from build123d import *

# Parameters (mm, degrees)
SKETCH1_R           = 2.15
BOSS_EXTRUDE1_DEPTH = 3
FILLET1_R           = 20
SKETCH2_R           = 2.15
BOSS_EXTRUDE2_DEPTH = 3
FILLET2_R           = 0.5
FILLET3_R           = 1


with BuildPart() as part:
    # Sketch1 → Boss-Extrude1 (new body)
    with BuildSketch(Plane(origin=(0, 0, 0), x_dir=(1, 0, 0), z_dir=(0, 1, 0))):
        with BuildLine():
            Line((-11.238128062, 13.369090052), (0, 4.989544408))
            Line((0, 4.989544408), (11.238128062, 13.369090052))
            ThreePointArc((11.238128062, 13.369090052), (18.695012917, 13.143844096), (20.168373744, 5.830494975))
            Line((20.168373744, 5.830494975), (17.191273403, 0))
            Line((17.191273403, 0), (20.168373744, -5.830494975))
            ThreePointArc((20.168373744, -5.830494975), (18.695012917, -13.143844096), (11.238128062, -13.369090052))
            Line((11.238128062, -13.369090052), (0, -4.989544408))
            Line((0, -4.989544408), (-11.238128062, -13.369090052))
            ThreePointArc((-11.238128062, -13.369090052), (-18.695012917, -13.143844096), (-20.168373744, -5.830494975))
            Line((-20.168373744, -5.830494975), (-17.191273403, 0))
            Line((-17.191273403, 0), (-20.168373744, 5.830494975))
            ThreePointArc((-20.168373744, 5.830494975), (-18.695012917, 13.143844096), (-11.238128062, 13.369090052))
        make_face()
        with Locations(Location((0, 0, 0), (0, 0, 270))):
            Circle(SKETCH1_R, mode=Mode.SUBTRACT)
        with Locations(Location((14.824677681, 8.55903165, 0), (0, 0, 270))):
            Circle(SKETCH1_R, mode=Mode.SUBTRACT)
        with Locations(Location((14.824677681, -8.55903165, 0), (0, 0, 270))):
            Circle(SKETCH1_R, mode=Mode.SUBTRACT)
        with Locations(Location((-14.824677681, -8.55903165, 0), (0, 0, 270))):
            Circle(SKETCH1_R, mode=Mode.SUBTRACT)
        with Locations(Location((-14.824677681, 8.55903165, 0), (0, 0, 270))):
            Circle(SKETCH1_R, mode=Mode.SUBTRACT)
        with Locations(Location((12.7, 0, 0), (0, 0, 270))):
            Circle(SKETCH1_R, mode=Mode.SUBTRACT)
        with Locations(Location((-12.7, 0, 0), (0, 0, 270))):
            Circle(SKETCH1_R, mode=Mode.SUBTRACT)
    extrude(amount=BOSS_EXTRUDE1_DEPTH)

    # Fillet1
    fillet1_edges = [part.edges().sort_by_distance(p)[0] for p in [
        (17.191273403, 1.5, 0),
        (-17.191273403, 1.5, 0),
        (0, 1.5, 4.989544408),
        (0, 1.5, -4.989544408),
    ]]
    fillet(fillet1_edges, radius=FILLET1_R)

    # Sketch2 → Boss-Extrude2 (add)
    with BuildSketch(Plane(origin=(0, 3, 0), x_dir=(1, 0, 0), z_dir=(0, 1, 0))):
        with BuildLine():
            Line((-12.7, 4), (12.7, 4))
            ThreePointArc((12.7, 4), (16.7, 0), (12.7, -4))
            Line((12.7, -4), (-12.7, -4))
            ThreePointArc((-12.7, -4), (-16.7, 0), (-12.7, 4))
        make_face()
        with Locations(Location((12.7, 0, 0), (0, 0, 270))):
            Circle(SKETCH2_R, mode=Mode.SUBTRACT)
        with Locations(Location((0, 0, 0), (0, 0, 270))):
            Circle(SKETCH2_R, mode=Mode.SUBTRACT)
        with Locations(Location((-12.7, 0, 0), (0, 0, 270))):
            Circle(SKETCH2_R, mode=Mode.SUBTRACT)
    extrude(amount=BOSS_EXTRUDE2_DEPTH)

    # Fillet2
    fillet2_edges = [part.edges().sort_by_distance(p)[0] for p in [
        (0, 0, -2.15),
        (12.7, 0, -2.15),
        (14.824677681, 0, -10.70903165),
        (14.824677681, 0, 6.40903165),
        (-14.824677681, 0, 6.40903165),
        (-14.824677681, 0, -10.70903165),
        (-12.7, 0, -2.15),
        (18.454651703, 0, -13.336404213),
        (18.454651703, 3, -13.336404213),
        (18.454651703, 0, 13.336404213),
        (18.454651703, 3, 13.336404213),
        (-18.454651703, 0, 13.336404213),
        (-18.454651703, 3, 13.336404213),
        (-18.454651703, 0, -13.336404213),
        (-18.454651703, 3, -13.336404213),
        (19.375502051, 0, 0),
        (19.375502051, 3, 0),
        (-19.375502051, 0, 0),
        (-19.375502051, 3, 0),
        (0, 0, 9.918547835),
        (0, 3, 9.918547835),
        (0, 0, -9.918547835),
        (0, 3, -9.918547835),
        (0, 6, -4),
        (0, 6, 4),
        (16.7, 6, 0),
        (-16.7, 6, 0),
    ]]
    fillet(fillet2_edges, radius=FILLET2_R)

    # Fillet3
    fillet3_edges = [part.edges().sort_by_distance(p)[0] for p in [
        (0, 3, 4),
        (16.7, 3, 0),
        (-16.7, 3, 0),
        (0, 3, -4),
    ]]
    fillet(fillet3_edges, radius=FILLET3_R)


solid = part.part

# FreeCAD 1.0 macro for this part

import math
import FreeCAD as App
import Part
import Sketcher
from FreeCAD import Vector
Q = App.Units.Quantity


def edges_at(feature, points):
    """Names of the edges that pass closest to the given points."""
    edges = feature.Shape.Edges
    near = lambda p: min(range(len(edges)), key=lambda i: edges[i].distToShape(Part.Vertex(*p))[0])
    return sorted({f"Edge{near(p) + 1}" for p in points})

doc = App.newDocument("Part")
body = doc.addObject("PartDesign::Body", "Body")

# Sketch on XZ plane
sketch1 = doc.addObject("Sketcher::SketchObject", "Sketch")
body.addObject(sketch1)
sketch1.AttachmentSupport = (doc.XZ_Plane, [""])
sketch1.MapMode = "FlatFace"
sketch1.addGeometry(Part.LineSegment(Vector(0, -5, 0), Vector(-11.2, -13.4, 0)), False)
sketch1.addGeometry(Part.ArcOfCircle(Part.Circle(Vector(-14.8, -8.6, 0), Vector(0, 0, 1), 6), math.radians(153), math.radians(307)), False)
sketch1.addGeometry(Part.LineSegment(Vector(-20.2, -5.8, 0), Vector(-17.2, 0, 0)), False)
sketch1.addGeometry(Part.LineSegment(Vector(-17.2, 0, 0), Vector(-20.2, 5.8, 0)), False)
sketch1.addGeometry(Part.ArcOfCircle(Part.Circle(Vector(-14.8, 8.6, 0), Vector(0, 0, 1), 6), math.radians(53), math.radians(207)), False)
sketch1.addGeometry(Part.LineSegment(Vector(-11.2, 13.4, 0), Vector(0, 5, 0)), False)
sketch1.addGeometry(Part.LineSegment(Vector(0, 5, 0), Vector(11.2, 13.4, 0)), False)
sketch1.addGeometry(Part.ArcOfCircle(Part.Circle(Vector(14.8, 8.6, 0), Vector(0, 0, 1), 6), math.radians(-27), math.radians(127)), False)
sketch1.addGeometry(Part.LineSegment(Vector(20.2, 5.8, 0), Vector(17.2, 0, 0)), False)
sketch1.addGeometry(Part.LineSegment(Vector(17.2, 0, 0), Vector(20.2, -5.8, 0)), False)
sketch1.addGeometry(Part.ArcOfCircle(Part.Circle(Vector(14.8, -8.6, 0), Vector(0, 0, 1), 6), math.radians(-127), math.radians(27)), False)
sketch1.addGeometry(Part.LineSegment(Vector(11.2, -13.4, 0), Vector(0, -5, 0)), False)
sketch1.addGeometry(Part.Circle(Vector(14.8, 8.6, 0), Vector(0, 0, 1), 2.1), False)
sketch1.addGeometry(Part.Circle(Vector(-14.8, 8.6, 0), Vector(0, 0, 1), 2.1), False)
sketch1.addGeometry(Part.Circle(Vector(12.7, 0, 0), Vector(0, 0, 1), 2.1), False)
sketch1.addGeometry(Part.Circle(Vector(14.8, -8.6, 0), Vector(0, 0, 1), 2.1), False)
sketch1.addGeometry(Part.Circle(Vector(0, 0, 0), Vector(0, 0, 1), 2.1), False)
sketch1.addGeometry(Part.Circle(Vector(-12.7, 0, 0), Vector(0, 0, 1), 2.1), False)
sketch1.addGeometry(Part.Circle(Vector(-14.8, -8.6, 0), Vector(0, 0, 1), 2.1), False)
sketch1.addConstraint(Sketcher.Constraint("Tangent", 0, 2, 1, 2))
sketch1.addConstraint(Sketcher.Constraint("Tangent", 1, 1, 2, 1))
sketch1.addConstraint(Sketcher.Constraint("Coincident", 2, 2, 3, 1))
sketch1.addConstraint(Sketcher.Constraint("Tangent", 3, 2, 4, 2))
sketch1.addConstraint(Sketcher.Constraint("Tangent", 4, 1, 5, 1))
sketch1.addConstraint(Sketcher.Constraint("Coincident", 5, 2, 6, 1))
sketch1.addConstraint(Sketcher.Constraint("Tangent", 6, 2, 7, 2))
sketch1.addConstraint(Sketcher.Constraint("Tangent", 7, 1, 8, 1))
sketch1.addConstraint(Sketcher.Constraint("Coincident", 8, 2, 9, 1))
sketch1.addConstraint(Sketcher.Constraint("Tangent", 9, 2, 10, 2))
sketch1.addConstraint(Sketcher.Constraint("Tangent", 10, 1, 11, 1))
sketch1.addConstraint(Sketcher.Constraint("Coincident", 11, 2, 0, 1))
sketch1.addConstraint(Sketcher.Constraint("Coincident", 16, 3, -1, 1))
sketch1.addConstraint(Sketcher.Constraint("Coincident", 12, 3, 7, 3))
sketch1.addConstraint(Sketcher.Constraint("Coincident", 13, 3, 4, 3))
sketch1.addConstraint(Sketcher.Constraint("Coincident", 15, 3, 10, 3))
sketch1.addConstraint(Sketcher.Constraint("Coincident", 18, 3, 1, 3))
sketch1.addConstraint(Sketcher.Constraint("Equal", 1, 4))
sketch1.addConstraint(Sketcher.Constraint("Equal", 4, 7))
sketch1.addConstraint(Sketcher.Constraint("Equal", 7, 10))
sketch1.addConstraint(Sketcher.Constraint("Equal", 12, 13))
sketch1.addConstraint(Sketcher.Constraint("Equal", 13, 14))
sketch1.addConstraint(Sketcher.Constraint("Equal", 14, 15))
sketch1.addConstraint(Sketcher.Constraint("Equal", 15, 16))
sketch1.addConstraint(Sketcher.Constraint("Equal", 16, 17))
sketch1.addConstraint(Sketcher.Constraint("Equal", 17, 18))
sketch1.addConstraint(Sketcher.Constraint("Symmetric", 1, 3, 7, 3, -1, 1))
sketch1.addConstraint(Sketcher.Constraint("Symmetric", 4, 3, 10, 3, -1, 1))
sketch1.addConstraint(Sketcher.Constraint("Symmetric", 14, 3, 17, 3, -1, 1))
sketch1.addConstraint(Sketcher.Constraint("Symmetric", 2, 2, 8, 2, -1, 1))
sketch1.addConstraint(Sketcher.Constraint("Symmetric", 5, 2, 11, 2, -1, 1))
sketch1.addConstraint(Sketcher.Constraint("Symmetric", 4, 3, 7, 3, -2))
sketch1.addConstraint(Sketcher.Constraint("PointOnObject", 14, 3, -1))
sketch1.addConstraint(Sketcher.Constraint("PointOnObject", 2, 2, -1))
sketch1.addConstraint(Sketcher.Constraint("PointOnObject", 5, 2, -2))
sketch1.addConstraint(Sketcher.Constraint("Radius", 1, Q("6 mm")))
sketch1.addConstraint(Sketcher.Constraint("Diameter", 12, Q("4.3 mm")))
sketch1.addConstraint(Sketcher.Constraint("DistanceX", -1, 1, 14, 3, Q("12.7 mm")))
sketch1.addConstraint(Sketcher.Constraint("DistanceX", 1, 1, 2, 2, Q("2.9771 mm")))
sketch1.addConstraint(Sketcher.Constraint("DistanceY", 1, 3, -1, 1, Q("8.559032 mm")))
sketch1.addConstraint(Sketcher.Constraint("DistanceX", 0, 2, -1, 1, Q("11.238128 mm")))
sketch1.addConstraint(Sketcher.Constraint("DistanceY", 0, 2, -1, 1, Q("13.36909 mm")))
pad1 = doc.addObject("PartDesign::Pad", "Pad")
body.addObject(pad1)
pad1.Profile = sketch1
pad1.Length = 3
pad1.Reversed = True
doc.recompute()

fillet = doc.addObject("PartDesign::Fillet", "Fillet")
body.addObject(fillet)
fillet.Base = (pad1, edges_at(pad1, [
    (17.191, 1.5, 0),
    (-17.191, 1.5, 0),
    (0, 1.5, 4.99),
    (0, 1.5, -4.99),
]))
fillet.Radius = 20

# Sketch on XZ plane
sketch2 = doc.addObject("Sketcher::SketchObject", "Sketch001")
body.addObject(sketch2)
sketch2.AttachmentSupport = (doc.XZ_Plane, [""])
sketch2.MapMode = "FlatFace"
sketch2.AttachmentOffset = App.Placement(Vector(0, 0, -3), App.Rotation())
sketch2.addGeometry(Part.LineSegment(Vector(12.7, -4, 0), Vector(-12.7, -4, 0)), False)
sketch2.addGeometry(Part.ArcOfCircle(Part.Circle(Vector(-12.7, 0, 0), Vector(0, 0, 1), 4), math.radians(90), math.radians(270)), False)
sketch2.addGeometry(Part.LineSegment(Vector(-12.7, 4, 0), Vector(12.7, 4, 0)), False)
sketch2.addGeometry(Part.ArcOfCircle(Part.Circle(Vector(12.7, 0, 0), Vector(0, 0, 1), 4), math.radians(-90), math.radians(90)), False)
sketch2.addGeometry(Part.Circle(Vector(12.7, 0, 0), Vector(0, 0, 1), 2.1), False)
sketch2.addGeometry(Part.Circle(Vector(0, 0, 0), Vector(0, 0, 1), 2.1), False)
sketch2.addGeometry(Part.Circle(Vector(-12.7, 0, 0), Vector(0, 0, 1), 2.1), False)
sketch2.addConstraint(Sketcher.Constraint("Tangent", 0, 2, 1, 2))
sketch2.addConstraint(Sketcher.Constraint("Tangent", 1, 1, 2, 1))
sketch2.addConstraint(Sketcher.Constraint("Tangent", 2, 2, 3, 2))
sketch2.addConstraint(Sketcher.Constraint("Tangent", 3, 1, 0, 1))
sketch2.addConstraint(Sketcher.Constraint("Horizontal", 0))
sketch2.addConstraint(Sketcher.Constraint("Horizontal", 2))
sketch2.addConstraint(Sketcher.Constraint("Coincident", 5, 3, -1, 1))
sketch2.addConstraint(Sketcher.Constraint("Coincident", 4, 3, 3, 3))
sketch2.addConstraint(Sketcher.Constraint("Coincident", 6, 3, 1, 3))
sketch2.addConstraint(Sketcher.Constraint("Equal", 4, 5))
sketch2.addConstraint(Sketcher.Constraint("Equal", 5, 6))
sketch2.addConstraint(Sketcher.Constraint("Symmetric", 1, 3, 3, 3, -1, 1))
sketch2.addConstraint(Sketcher.Constraint("Radius", 1, Q("4 mm")))
sketch2.addConstraint(Sketcher.Constraint("Diameter", 4, Q("4.3 mm")))
sketch2.addConstraint(Sketcher.Constraint("DistanceX", 0, 2, 0, 1, Q("25.4 mm")))
pad2 = doc.addObject("PartDesign::Pad", "Pad001")
body.addObject(pad2)
pad2.Profile = sketch2
pad2.Length = 3
pad2.Reversed = True
doc.recompute()

fillet2 = doc.addObject("PartDesign::Fillet", "Fillet001")
body.addObject(fillet2)
fillet2.Base = (pad2, edges_at(pad2, [
    (0, 0, -2.15),
    (12.7, 0, -2.15),
    (14.825, 0, -10.709),
    (14.825, 0, 6.409),
    (-14.825, 0, 6.409),
    (-14.825, 0, -10.709),
    (-12.7, 0, -2.15),
    (18.455, 0, -13.336),
    (18.455, 3, -13.336),
    (18.455, 0, 13.336),
    (18.455, 3, 13.336),
    (-18.455, 0, 13.336),
    (-18.455, 3, 13.336),
    (-18.455, 0, -13.336),
    (-18.455, 3, -13.336),
    (19.376, 0, 0),
    (19.376, 3, 0),
    (-19.376, 0, 0),
    (-19.376, 3, 0),
    (0, 0, 9.919),
    (0, 3, 9.919),
    (0, 0, -9.919),
    (0, 3, -9.919),
    (0, 6, -4),
    (0, 6, 4),
    (16.7, 6, 0),
    (-16.7, 6, 0),
]))
fillet2.Radius = 0.5
doc.recompute()

fillet3 = doc.addObject("PartDesign::Fillet", "Fillet002")
body.addObject(fillet3)
fillet3.Base = (fillet2, edges_at(fillet2, [
    (0, 3, 4),
    (16.7, 3, 0),
    (-16.7, 3, 0),
    (0, 3, -4),
]))
fillet3.Radius = 1

doc.recompute()
